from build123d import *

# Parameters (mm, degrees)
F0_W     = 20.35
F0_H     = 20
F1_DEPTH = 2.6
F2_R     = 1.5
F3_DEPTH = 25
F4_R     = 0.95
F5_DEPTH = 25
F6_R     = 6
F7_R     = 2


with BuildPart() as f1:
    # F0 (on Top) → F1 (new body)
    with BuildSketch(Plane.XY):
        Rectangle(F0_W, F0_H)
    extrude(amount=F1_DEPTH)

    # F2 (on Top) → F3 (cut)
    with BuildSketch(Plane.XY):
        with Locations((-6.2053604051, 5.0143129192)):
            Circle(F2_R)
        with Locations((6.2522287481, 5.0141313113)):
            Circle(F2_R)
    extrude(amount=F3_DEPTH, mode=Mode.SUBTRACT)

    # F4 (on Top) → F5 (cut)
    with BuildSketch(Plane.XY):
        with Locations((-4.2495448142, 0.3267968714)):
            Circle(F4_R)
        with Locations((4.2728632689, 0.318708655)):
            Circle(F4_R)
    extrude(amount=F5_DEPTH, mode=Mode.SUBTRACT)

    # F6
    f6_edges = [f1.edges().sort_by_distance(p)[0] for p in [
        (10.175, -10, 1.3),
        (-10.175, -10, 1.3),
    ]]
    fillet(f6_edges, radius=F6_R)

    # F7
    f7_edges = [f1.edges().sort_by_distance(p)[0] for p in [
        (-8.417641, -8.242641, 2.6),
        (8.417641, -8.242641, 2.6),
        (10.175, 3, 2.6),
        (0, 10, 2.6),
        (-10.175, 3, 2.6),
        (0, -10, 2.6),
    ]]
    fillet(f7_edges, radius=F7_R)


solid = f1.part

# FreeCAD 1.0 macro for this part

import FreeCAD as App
import Part
import Sketcher
Q = App.Units.Quantity


def edges_at(feature, points):
    """Names of the edges that pass closest to the given points."""
    edges = feature.Shape.Edges
    near = lambda p: min(range(len(edges)), key=lambda i: edges[i].distToShape(Part.Vertex(*p))[0])
    return sorted({f"Edge{near(p) + 1}" for p in points})


def add_polygon(sketch, points):
    """Adds a closed chain of lines whose ends are joined by coincident constraints."""
    first, n = sketch.GeometryCount, len(points)
    for a, b in zip(points, points[1:] + points[:1]):
        sketch.addGeometry(Part.LineSegment(App.Vector(*a, 0), App.Vector(*b, 0)), False)
    for i in range(n):
        sketch.addConstraint(Sketcher.Constraint("Coincident", first + i, 2, first + (i + 1) % n, 1))

doc = App.newDocument("Part")
body = doc.addObject("PartDesign::Body", "Body")

# Sketch on XY plane
sketch1 = doc.addObject("Sketcher::SketchObject", "Sketch")
body.addObject(sketch1)
sketch1.AttachmentSupport = (doc.XY_Plane, [""])
sketch1.MapMode = "FlatFace"
add_polygon(sketch1, [(-10, 10), (-10, -10), (10, -10), (10, 10)])  # lines 0-3
sketch1.addConstraint([
    Sketcher.Constraint("Vertical", 0),
    Sketcher.Constraint("Horizontal", 1),
    Sketcher.Constraint("Vertical", 2),
    Sketcher.Constraint("Horizontal", 3),
    Sketcher.Constraint("Symmetric", 0, 2, 2, 2, -1, 1),
    Sketcher.Constraint("DistanceY", 0, 2, 0, 1, Q("20 mm")),
    Sketcher.Constraint("DistanceX", 1, 1, 1, 2, Q("20.35 mm")),
])
pad1 = doc.addObject("PartDesign::Pad", "Pad")
body.addObject(pad1)
pad1.Profile = sketch1
pad1.Length = 2.6

# Sketch on XY plane
sketch2 = doc.addObject("Sketcher::SketchObject", "Sketch001")
body.addObject(sketch2)
sketch2.AttachmentSupport = (doc.XY_Plane, [""])
sketch2.MapMode = "FlatFace"
sketch2.addGeometry([
    Part.Circle(App.Vector(-6.2, 5, 0), App.Vector(0, 0, 1), 1.5),
    Part.Circle(App.Vector(6.3, 5, 0), App.Vector(0, 0, 1), 1.5),
], False)
sketch2.addConstraint([
    Sketcher.Constraint("Equal", 0, 1),
    Sketcher.Constraint("Diameter", 0, Q("3 mm")),
    Sketcher.Constraint("DistanceX", 0, 3, -1, 1, Q("6.20536 mm")),
    Sketcher.Constraint("DistanceX", -1, 1, 1, 3, Q("6.252229 mm")),
    Sketcher.Constraint("DistanceY", -1, 1, 1, 3, Q("5.014131 mm")),
    Sketcher.Constraint("DistanceY", 1, 3, 0, 3, Q("0.000182 mm")),
])
pocket1 = doc.addObject("PartDesign::Pocket", "Pocket")
body.addObject(pocket1)
pocket1.Profile = sketch2
pocket1.Length = 25
pocket1.Reversed = True

# Sketch on XY plane
sketch3 = doc.addObject("Sketcher::SketchObject", "Sketch002")
body.addObject(sketch3)
sketch3.AttachmentSupport = (doc.XY_Plane, [""])
sketch3.MapMode = "FlatFace"
sketch3.addGeometry([
    Part.Circle(App.Vector(-4.2, 0.3, 0), App.Vector(0, 0, 1), 0.9),
    Part.Circle(App.Vector(4.3, 0.3, 0), App.Vector(0, 0, 1), 0.9),
], False)
sketch3.addConstraint([
    Sketcher.Constraint("Equal", 0, 1),
    Sketcher.Constraint("Diameter", 0, Q("1.9 mm")),
    Sketcher.Constraint("DistanceY", -1, 1, 1, 3, Q("0.318709 mm")),
    Sketcher.Constraint("DistanceX", 0, 3, 1, 3, Q("8.522408 mm")),
    Sketcher.Constraint("DistanceY", 1, 3, 0, 3, Q("0.008088 mm")),
    Sketcher.Constraint("DistanceX", 0, 3, -1, 1, Q("4.249545 mm")),
])
pocket2 = doc.addObject("PartDesign::Pocket", "Pocket001")
body.addObject(pocket2)
pocket2.Profile = sketch3
pocket2.Length = 25
pocket2.Reversed = True
doc.recompute()

fillet = doc.addObject("PartDesign::Fillet", "Fillet")
body.addObject(fillet)
fillet.Base = (pocket2, edges_at(pocket2, [(10.175, -10, 1.3), (-10.175, -10, 1.3)]))
fillet.Radius = 6
doc.recompute()

fillet2 = doc.addObject("PartDesign::Fillet", "Fillet001")
body.addObject(fillet2)
fillet2.Base = (fillet, edges_at(fillet, [
    (-8.418, -8.243, 2.6),
    (8.418, -8.243, 2.6),
    (10.175, 3, 2.6),
    (0, 10, 2.6),
    (-10.175, 3, 2.6),
    (0, -10, 2.6),
]))
fillet2.Radius = 2

doc.recompute()
